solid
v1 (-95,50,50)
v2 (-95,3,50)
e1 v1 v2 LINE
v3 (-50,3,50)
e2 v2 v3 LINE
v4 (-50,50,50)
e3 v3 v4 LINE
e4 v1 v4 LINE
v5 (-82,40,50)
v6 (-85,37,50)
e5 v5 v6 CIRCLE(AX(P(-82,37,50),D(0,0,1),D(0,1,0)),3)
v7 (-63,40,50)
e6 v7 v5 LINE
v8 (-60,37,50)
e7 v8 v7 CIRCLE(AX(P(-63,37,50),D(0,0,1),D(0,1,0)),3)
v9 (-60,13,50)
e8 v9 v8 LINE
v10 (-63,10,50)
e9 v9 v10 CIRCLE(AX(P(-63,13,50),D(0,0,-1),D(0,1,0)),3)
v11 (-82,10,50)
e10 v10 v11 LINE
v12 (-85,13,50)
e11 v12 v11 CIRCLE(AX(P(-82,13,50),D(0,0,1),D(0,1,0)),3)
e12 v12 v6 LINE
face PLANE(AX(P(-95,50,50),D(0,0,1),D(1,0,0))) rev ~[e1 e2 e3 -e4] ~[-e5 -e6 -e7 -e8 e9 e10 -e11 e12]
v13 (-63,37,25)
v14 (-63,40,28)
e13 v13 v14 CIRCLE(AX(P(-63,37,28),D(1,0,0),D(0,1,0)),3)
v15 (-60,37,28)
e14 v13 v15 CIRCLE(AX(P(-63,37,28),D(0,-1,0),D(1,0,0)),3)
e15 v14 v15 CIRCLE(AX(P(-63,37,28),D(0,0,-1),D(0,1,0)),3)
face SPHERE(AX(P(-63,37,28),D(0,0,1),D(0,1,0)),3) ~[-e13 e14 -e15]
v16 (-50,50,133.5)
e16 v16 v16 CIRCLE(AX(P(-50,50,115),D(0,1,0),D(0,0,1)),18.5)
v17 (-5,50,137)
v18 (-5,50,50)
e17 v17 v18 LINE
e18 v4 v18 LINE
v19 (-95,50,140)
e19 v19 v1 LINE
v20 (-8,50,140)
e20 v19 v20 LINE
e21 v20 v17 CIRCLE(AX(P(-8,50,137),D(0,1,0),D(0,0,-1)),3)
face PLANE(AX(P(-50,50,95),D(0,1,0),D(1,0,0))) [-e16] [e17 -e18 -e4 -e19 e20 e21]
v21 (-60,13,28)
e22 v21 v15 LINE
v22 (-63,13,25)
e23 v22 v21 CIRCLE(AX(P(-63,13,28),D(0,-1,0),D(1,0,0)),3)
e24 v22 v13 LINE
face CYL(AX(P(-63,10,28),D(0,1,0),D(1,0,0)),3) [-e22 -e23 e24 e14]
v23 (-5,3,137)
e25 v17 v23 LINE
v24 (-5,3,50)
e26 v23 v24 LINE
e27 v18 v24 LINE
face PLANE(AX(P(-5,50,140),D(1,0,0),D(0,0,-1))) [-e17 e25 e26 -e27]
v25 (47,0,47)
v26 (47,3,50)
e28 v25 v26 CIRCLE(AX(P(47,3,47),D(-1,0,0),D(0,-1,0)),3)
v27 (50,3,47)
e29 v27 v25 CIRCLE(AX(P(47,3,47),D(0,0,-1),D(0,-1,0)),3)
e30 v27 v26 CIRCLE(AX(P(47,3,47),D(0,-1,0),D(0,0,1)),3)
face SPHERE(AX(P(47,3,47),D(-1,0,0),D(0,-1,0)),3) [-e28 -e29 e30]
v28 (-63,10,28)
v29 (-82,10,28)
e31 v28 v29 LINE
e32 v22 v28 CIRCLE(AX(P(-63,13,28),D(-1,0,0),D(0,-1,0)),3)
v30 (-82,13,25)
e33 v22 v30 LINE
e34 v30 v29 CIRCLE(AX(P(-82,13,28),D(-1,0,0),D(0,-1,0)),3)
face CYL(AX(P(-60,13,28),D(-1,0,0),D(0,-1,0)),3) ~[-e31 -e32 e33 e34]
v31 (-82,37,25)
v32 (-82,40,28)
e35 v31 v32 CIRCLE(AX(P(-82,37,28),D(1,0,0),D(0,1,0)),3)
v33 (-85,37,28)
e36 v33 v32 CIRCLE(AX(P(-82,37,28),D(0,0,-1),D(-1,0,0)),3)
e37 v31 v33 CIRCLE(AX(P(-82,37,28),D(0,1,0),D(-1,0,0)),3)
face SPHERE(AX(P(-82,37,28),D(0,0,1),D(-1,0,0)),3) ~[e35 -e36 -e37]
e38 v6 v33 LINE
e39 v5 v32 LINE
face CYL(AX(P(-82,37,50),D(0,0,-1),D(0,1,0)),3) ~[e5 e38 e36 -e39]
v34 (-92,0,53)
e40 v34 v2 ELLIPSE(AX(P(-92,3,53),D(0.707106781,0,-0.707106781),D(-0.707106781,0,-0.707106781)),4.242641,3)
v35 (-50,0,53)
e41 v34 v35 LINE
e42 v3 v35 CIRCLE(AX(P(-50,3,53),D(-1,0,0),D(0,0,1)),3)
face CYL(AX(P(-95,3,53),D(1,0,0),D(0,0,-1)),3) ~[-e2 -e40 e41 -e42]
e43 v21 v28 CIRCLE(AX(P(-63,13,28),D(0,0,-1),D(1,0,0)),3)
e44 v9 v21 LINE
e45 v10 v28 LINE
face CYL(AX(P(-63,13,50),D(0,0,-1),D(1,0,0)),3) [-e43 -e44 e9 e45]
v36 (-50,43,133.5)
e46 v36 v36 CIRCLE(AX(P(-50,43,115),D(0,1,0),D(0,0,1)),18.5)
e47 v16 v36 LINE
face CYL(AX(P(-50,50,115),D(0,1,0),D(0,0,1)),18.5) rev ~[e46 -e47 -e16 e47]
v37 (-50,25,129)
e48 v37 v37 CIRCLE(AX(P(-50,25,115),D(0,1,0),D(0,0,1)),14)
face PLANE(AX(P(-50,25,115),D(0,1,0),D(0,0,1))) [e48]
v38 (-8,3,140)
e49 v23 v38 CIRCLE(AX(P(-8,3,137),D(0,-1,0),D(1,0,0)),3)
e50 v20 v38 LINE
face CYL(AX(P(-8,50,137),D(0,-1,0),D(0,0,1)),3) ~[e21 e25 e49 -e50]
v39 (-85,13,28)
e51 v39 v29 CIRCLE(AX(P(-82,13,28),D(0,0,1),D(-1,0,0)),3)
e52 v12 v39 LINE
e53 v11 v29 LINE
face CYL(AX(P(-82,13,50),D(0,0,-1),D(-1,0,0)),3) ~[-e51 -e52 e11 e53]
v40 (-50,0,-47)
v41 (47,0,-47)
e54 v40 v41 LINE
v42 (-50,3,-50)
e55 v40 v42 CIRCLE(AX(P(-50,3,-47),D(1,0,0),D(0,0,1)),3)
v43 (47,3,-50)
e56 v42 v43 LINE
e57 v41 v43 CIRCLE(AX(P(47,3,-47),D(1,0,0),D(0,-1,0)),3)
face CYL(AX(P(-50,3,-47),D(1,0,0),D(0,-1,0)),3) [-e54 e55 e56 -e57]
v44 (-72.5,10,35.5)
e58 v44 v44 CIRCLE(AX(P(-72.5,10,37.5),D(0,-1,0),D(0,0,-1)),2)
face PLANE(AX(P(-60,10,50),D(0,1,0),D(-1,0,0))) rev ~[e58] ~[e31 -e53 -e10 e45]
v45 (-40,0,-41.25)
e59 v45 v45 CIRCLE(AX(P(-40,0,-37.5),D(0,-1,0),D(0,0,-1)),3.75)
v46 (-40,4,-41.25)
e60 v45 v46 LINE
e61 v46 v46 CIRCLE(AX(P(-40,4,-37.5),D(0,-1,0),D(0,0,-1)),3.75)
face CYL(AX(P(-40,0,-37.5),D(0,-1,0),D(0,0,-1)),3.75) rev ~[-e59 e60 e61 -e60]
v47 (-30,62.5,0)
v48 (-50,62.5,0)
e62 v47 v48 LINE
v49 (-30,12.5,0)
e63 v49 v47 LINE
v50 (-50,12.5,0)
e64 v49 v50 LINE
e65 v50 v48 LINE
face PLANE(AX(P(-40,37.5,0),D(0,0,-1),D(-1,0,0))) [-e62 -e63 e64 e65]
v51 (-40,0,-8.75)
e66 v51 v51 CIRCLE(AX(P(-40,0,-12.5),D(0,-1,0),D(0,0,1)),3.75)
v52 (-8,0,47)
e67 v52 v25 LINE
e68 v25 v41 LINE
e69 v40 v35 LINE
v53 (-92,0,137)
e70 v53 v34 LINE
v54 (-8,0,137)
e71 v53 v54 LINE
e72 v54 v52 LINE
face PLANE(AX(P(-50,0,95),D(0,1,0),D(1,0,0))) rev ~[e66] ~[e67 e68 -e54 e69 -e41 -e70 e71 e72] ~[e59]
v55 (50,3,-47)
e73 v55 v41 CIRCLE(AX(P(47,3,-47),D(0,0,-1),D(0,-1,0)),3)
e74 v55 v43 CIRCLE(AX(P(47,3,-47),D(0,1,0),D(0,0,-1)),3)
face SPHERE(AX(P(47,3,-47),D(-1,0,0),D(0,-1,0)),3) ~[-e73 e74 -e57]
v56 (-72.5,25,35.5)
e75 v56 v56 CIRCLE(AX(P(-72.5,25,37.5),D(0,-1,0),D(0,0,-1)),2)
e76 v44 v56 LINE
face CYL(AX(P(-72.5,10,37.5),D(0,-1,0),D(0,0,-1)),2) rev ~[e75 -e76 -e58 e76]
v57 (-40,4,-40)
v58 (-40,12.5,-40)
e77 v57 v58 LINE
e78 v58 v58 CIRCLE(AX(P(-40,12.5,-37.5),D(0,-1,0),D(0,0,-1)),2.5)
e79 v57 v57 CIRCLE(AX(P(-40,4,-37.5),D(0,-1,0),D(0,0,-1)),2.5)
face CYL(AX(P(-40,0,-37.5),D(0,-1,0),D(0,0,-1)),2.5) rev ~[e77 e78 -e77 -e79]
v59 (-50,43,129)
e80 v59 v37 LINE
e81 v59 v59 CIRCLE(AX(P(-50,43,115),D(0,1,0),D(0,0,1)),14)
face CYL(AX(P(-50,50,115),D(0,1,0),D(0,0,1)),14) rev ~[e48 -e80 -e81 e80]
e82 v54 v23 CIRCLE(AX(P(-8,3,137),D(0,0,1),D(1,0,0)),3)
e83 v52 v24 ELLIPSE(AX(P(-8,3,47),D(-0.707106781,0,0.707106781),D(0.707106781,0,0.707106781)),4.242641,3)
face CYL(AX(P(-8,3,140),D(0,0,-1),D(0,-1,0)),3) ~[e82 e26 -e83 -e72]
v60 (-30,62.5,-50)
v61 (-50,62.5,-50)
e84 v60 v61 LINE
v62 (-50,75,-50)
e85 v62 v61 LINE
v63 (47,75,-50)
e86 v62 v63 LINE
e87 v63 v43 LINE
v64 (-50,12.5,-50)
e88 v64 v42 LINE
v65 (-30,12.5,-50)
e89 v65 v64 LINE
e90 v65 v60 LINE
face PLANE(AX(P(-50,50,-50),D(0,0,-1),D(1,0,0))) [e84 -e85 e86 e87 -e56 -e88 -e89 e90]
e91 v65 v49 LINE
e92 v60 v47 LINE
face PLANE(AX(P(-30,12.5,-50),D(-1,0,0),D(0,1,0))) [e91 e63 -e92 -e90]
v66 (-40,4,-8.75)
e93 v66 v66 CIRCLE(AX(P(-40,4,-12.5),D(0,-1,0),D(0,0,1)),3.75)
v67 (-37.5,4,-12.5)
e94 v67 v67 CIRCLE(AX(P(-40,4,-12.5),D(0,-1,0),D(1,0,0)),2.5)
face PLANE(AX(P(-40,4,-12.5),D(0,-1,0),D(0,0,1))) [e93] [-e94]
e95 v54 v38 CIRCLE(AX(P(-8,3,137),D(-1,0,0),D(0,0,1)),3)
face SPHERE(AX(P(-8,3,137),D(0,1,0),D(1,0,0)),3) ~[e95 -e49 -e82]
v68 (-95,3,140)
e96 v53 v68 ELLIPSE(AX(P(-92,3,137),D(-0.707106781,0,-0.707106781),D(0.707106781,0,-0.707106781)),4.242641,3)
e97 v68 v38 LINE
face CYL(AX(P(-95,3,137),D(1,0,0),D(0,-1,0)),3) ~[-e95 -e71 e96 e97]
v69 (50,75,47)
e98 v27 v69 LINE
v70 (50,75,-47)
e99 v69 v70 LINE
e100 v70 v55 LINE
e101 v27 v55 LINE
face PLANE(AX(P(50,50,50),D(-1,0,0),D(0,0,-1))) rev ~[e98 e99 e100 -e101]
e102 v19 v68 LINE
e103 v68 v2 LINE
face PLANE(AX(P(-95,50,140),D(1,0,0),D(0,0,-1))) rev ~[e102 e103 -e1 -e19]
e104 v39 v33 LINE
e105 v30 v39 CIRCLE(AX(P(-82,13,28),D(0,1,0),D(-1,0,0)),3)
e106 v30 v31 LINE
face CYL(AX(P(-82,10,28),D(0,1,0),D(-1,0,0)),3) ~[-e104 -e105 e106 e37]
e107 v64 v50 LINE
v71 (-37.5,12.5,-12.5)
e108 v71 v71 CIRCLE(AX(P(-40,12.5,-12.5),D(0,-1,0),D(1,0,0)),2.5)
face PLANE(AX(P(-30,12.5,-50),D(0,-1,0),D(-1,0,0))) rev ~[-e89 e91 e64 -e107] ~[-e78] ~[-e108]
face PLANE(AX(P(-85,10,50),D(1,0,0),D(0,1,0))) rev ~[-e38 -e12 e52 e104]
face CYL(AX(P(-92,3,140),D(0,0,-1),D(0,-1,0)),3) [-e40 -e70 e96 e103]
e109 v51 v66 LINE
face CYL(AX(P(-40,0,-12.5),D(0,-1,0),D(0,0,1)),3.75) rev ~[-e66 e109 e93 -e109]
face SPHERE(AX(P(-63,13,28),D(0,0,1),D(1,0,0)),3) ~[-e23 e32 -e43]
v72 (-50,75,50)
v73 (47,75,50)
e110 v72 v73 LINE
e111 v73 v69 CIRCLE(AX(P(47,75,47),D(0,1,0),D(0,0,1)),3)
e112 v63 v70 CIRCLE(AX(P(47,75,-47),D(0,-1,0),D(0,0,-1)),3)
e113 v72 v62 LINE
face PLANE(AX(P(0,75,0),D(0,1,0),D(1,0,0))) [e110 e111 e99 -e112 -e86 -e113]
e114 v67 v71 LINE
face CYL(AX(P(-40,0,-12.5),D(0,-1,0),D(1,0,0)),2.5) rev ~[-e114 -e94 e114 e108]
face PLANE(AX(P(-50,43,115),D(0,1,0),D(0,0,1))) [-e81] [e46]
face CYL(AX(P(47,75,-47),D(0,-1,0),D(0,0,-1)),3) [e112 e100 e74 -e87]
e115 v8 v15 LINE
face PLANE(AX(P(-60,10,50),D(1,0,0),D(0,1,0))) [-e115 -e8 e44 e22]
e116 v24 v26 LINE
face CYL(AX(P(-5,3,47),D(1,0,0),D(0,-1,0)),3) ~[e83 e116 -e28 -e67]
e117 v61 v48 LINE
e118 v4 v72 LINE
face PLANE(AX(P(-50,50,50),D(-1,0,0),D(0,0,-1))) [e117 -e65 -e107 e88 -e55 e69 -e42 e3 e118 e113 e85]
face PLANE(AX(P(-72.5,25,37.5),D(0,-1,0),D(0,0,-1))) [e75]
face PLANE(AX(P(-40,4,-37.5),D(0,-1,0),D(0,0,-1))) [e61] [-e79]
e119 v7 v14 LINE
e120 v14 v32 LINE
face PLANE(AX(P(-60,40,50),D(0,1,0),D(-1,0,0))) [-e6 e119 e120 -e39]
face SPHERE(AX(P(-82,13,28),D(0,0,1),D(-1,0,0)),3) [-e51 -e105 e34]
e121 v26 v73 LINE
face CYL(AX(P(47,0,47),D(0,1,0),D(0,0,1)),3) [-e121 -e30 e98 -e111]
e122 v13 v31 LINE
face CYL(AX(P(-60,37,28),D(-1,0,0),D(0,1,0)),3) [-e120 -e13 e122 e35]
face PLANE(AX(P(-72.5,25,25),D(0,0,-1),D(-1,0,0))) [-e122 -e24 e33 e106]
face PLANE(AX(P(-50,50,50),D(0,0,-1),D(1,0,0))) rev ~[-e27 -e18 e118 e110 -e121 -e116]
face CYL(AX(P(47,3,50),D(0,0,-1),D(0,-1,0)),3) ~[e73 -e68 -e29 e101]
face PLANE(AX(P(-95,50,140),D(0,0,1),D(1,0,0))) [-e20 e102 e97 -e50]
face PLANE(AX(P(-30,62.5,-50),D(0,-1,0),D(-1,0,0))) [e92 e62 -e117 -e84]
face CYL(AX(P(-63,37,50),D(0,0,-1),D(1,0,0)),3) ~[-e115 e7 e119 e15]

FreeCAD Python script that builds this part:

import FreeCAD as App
import Part
import Sketcher


def edges_at(feature, points):
    """Names of the edges that pass closest to the given points."""
    edges = feature.Shape.Edges
    near = lambda p: min(range(len(edges)), key=lambda i: edges[i].distToShape(Part.Vertex(*p))[0])
    return sorted({f"Edge{near(p) + 1}" for p in points})

doc = App.newDocument("Part")
body = doc.addObject("PartDesign::Body", "Body")

# Sketch on XZ plane
sketch1 = body.newObject("Sketcher::SketchObject", "Sketch")
sketch1.AttachmentSupport = (doc.getObject("XZ_Plane"), [""])
sketch1.MapMode = "FlatFace"
sketch1.addGeometry(Part.LineSegment(App.Vector(-50, -50, 0), App.Vector(-50, 50, 0)), False)
sketch1.addGeometry(Part.LineSegment(App.Vector(-50, 50, 0), App.Vector(50, 50, 0)), False)
sketch1.addGeometry(Part.LineSegment(App.Vector(50, 50, 0), App.Vector(50, -50, 0)), False)
sketch1.addGeometry(Part.LineSegment(App.Vector(50, -50, 0), App.Vector(-50, -50, 0)), False)
sketch1.addConstraint(Sketcher.Constraint("Coincident", 0, 2, 1, 1))
sketch1.addConstraint(Sketcher.Constraint("Coincident", 1, 2, 2, 1))
sketch1.addConstraint(Sketcher.Constraint("Coincident", 2, 2, 3, 1))
sketch1.addConstraint(Sketcher.Constraint("Coincident", 3, 2, 0, 1))
sketch1.addConstraint(Sketcher.Constraint("Vertical", 0))
sketch1.addConstraint(Sketcher.Constraint("Horizontal", 1))
sketch1.addConstraint(Sketcher.Constraint("Vertical", 2))
sketch1.addConstraint(Sketcher.Constraint("Horizontal", 3))
sketch1.addConstraint(Sketcher.Constraint("Symmetric", 0, 2, 2, 2, -1, 1))
sketch1.addConstraint(Sketcher.Constraint("Equal", 3, 0))
sketch1.addConstraint(Sketcher.Constraint("DistanceX", 1, 1, 1, 2, 100.0))
pad1 = body.newObject("PartDesign::Pad", "Pad")
pad1.Profile = sketch1
pad1.Length = 50
pad1.Reversed = True

# Sketch on XZ plane
sketch2 = body.newObject("Sketcher::SketchObject", "Sketch001")
sketch2.AttachmentSupport = (doc.getObject("XZ_Plane"), [""])
sketch2.MapMode = "FlatFace"
sketch2.AttachmentOffset = App.Placement(App.Vector(0, 0, -50), App.Rotation())
sketch2.addGeometry(Part.LineSegment(App.Vector(-95, 50, 0), App.Vector(-95, 140, 0)), False)
sketch2.addGeometry(Part.LineSegment(App.Vector(-95, 140, 0), App.Vector(-5, 140, 0)), False)
sketch2.addGeometry(Part.LineSegment(App.Vector(-5, 140, 0), App.Vector(-5, 50, 0)), False)
sketch2.addGeometry(Part.LineSegment(App.Vector(-5, 50, 0), App.Vector(-95, 50, 0)), False)
sketch2.addConstraint(Sketcher.Constraint("Coincident", 0, 2, 1, 1))
sketch2.addConstraint(Sketcher.Constraint("Coincident", 1, 2, 2, 1))
sketch2.addConstraint(Sketcher.Constraint("Coincident", 2, 2, 3, 1))
sketch2.addConstraint(Sketcher.Constraint("Coincident", 3, 2, 0, 1))
sketch2.addConstraint(Sketcher.Constraint("Vertical", 0))
sketch2.addConstraint(Sketcher.Constraint("Horizontal", 1))
sketch2.addConstraint(Sketcher.Constraint("Vertical", 2))
sketch2.addConstraint(Sketcher.Constraint("Horizontal", 3))
sketch2.addConstraint(Sketcher.Constraint("Equal", 3, 0))
sketch2.addConstraint(Sketcher.Constraint("DistanceX", 1, 1, 1, 2, 90.0))
sketch2.addConstraint(Sketcher.Constraint("DistanceX", 0, 2, -1, 1, 95.0))
sketch2.addConstraint(Sketcher.Constraint("DistanceY", -1, 1, 0, 2, 140.0))
pad2 = body.newObject("PartDesign::Pad", "Pad001")
pad2.Profile = sketch2
pad2.Length = 50

# Sketch on XZ plane
sketch3 = body.newObject("Sketcher::SketchObject", "Sketch002")
sketch3.AttachmentSupport = (doc.getObject("XZ_Plane"), [""])
sketch3.MapMode = "FlatFace"
sketch3.AttachmentOffset = App.Placement(App.Vector(0, 0, -50), App.Rotation())
sketch3.addGeometry(Part.Circle(App.Vector(-50, 115, 0), App.Vector(0, 0, 1), 18.5), False)
sketch3.addConstraint(Sketcher.Constraint("Diameter", 0, 37.0))
sketch3.addConstraint(Sketcher.Constraint("DistanceX", 0, 3, -1, 1, 50.0))
sketch3.addConstraint(Sketcher.Constraint("DistanceY", -1, 1, 0, 3, 115.0))
pocket1 = body.newObject("PartDesign::Pocket", "Pocket")
pocket1.Profile = sketch3
pocket1.Length = 7
pocket1.Reversed = True

# Sketch on XZ plane
sketch4 = body.newObject("Sketcher::SketchObject", "Sketch003")
sketch4.AttachmentSupport = (doc.getObject("XZ_Plane"), [""])
sketch4.MapMode = "FlatFace"
sketch4.AttachmentOffset = App.Placement(App.Vector(0, 0, -50), App.Rotation())
sketch4.addGeometry(Part.Circle(App.Vector(-50, 115, 0), App.Vector(0, 0, 1), 14), False)
sketch4.addConstraint(Sketcher.Constraint("Diameter", 0, 28.0))
sketch4.addConstraint(Sketcher.Constraint("DistanceX", 0, 3, -1, 1, 50.0))
sketch4.addConstraint(Sketcher.Constraint("DistanceY", -1, 1, 0, 3, 115.0))
pocket2 = body.newObject("PartDesign::Pocket", "Pocket001")
pocket2.Profile = sketch4
pocket2.Length = 25
pocket2.Reversed = True

# Sketch on XY plane
sketch5 = body.newObject("Sketcher::SketchObject", "Sketch004")
sketch5.AttachmentSupport = (doc.getObject("XY_Plane"), [""])
sketch5.MapMode = "FlatFace"
sketch5.AttachmentOffset = App.Placement(App.Vector(0, 0, 50), App.Rotation())
sketch5.addGeometry(Part.LineSegment(App.Vector(-60, 40, 0), App.Vector(-60, 10, 0)), False)
sketch5.addGeometry(Part.LineSegment(App.Vector(-60, 10, 0), App.Vector(-85, 10, 0)), False)
sketch5.addGeometry(Part.LineSegment(App.Vector(-85, 10, 0), App.Vector(-85, 40, 0)), False)
sketch5.addGeometry(Part.LineSegment(App.Vector(-85, 40, 0), App.Vector(-60, 40, 0)), False)
sketch5.addConstraint(Sketcher.Constraint("Coincident", 0, 2, 1, 1))
sketch5.addConstraint(Sketcher.Constraint("Coincident", 1, 2, 2, 1))
sketch5.addConstraint(Sketcher.Constraint("Coincident", 2, 2, 3, 1))
sketch5.addConstraint(Sketcher.Constraint("Coincident", 3, 2, 0, 1))
sketch5.addConstraint(Sketcher.Constraint("Vertical", 0))
sketch5.addConstraint(Sketcher.Constraint("Horizontal", 1))
sketch5.addConstraint(Sketcher.Constraint("Vertical", 2))
sketch5.addConstraint(Sketcher.Constraint("Horizontal", 3))
sketch5.addConstraint(Sketcher.Constraint("DistanceX", 1, 2, 1, 1, 25.0))
sketch5.addConstraint(Sketcher.Constraint("DistanceY", 0, 2, 0, 1, 30.0))
sketch5.addConstraint(Sketcher.Constraint("DistanceX", 0, 2, -1, 1, 60.0))
sketch5.addConstraint(Sketcher.Constraint("DistanceY", -1, 1, 0, 2, 10.0))
pad3 = body.newObject("PartDesign::Pad", "Pad002")
pad3.Profile = sketch5
pad3.Length = 25
pad3.Reversed = True

# Sketch on XZ plane
sketch6 = body.newObject("Sketcher::SketchObject", "Sketch005")
sketch6.AttachmentSupport = (doc.getObject("XZ_Plane"), [""])
sketch6.MapMode = "FlatFace"
sketch6.AttachmentOffset = App.Placement(App.Vector(0, 0, -50), App.Rotation())
sketch6.addGeometry(Part.LineSegment(App.Vector(-50, -50, 0), App.Vector(-50, 50, 0)), False)
sketch6.addGeometry(Part.LineSegment(App.Vector(-50, 50, 0), App.Vector(50, 50, 0)), False)
sketch6.addGeometry(Part.LineSegment(App.Vector(50, 50, 0), App.Vector(50, -50, 0)), False)
sketch6.addGeometry(Part.LineSegment(App.Vector(50, -50, 0), App.Vector(-50, -50, 0)), False)
sketch6.addConstraint(Sketcher.Constraint("Coincident", 0, 2, 1, 1))
sketch6.addConstraint(Sketcher.Constraint("Coincident", 1, 2, 2, 1))
sketch6.addConstraint(Sketcher.Constraint("Coincident", 2, 2, 3, 1))
sketch6.addConstraint(Sketcher.Constraint("Coincident", 3, 2, 0, 1))
sketch6.addConstraint(Sketcher.Constraint("Vertical", 0))
sketch6.addConstraint(Sketcher.Constraint("Horizontal", 1))
sketch6.addConstraint(Sketcher.Constraint("Vertical", 2))
sketch6.addConstraint(Sketcher.Constraint("Horizontal", 3))
sketch6.addConstraint(Sketcher.Constraint("Symmetric", 0, 2, 2, 2, -1, 1))
sketch6.addConstraint(Sketcher.Constraint("Equal", 3, 0))
sketch6.addConstraint(Sketcher.Constraint("DistanceX", 1, 1, 1, 2, 100.0))
pad4 = body.newObject("PartDesign::Pad", "Pad003")
pad4.Profile = sketch6
pad4.Length = 25
pad4.Reversed = True

# Sketch on XY plane
sketch7 = body.newObject("Sketcher::SketchObject", "Sketch006")
sketch7.AttachmentSupport = (doc.getObject("XY_Plane"), [""])
sketch7.MapMode = "FlatFace"
sketch7.AttachmentOffset = App.Placement(App.Vector(0, 0, -50), App.Rotation())
sketch7.addGeometry(Part.LineSegment(App.Vector(-30, 62.5, 0), App.Vector(-30, 12.5, 0)), False)
sketch7.addGeometry(Part.LineSegment(App.Vector(-30, 12.5, 0), App.Vector(-50, 12.5, 0)), False)
sketch7.addGeometry(Part.LineSegment(App.Vector(-50, 12.5, 0), App.Vector(-50, 62.5, 0)), False)
sketch7.addGeometry(Part.LineSegment(App.Vector(-50, 62.5, 0), App.Vector(-30, 62.5, 0)), False)
sketch7.addConstraint(Sketcher.Constraint("Coincident", 0, 2, 1, 1))
sketch7.addConstraint(Sketcher.Constraint("Coincident", 1, 2, 2, 1))
sketch7.addConstraint(Sketcher.Constraint("Coincident", 2, 2, 3, 1))
sketch7.addConstraint(Sketcher.Constraint("Coincident", 3, 2, 0, 1))
sketch7.addConstraint(Sketcher.Constraint("Vertical", 0))
sketch7.addConstraint(Sketcher.Constraint("Horizontal", 1))
sketch7.addConstraint(Sketcher.Constraint("Vertical", 2))
sketch7.addConstraint(Sketcher.Constraint("Horizontal", 3))
sketch7.addConstraint(Sketcher.Constraint("DistanceX", 1, 2, 1, 1, 20.0))
sketch7.addConstraint(Sketcher.Constraint("DistanceY", 0, 2, 0, 1, 50.0))
sketch7.addConstraint(Sketcher.Constraint("DistanceX", 0, 2, -1, 1, 30.0))
sketch7.addConstraint(Sketcher.Constraint("DistanceY", -1, 1, 0, 2, 12.5))
pocket3 = body.newObject("PartDesign::Pocket", "Pocket002")
pocket3.Profile = sketch7
pocket3.Length = 50
pocket3.Reversed = True

# Sketch on XZ plane
sketch8 = body.newObject("Sketcher::SketchObject", "Sketch007")
sketch8.AttachmentSupport = (doc.getObject("XZ_Plane"), [""])
sketch8.MapMode = "FlatFace"
sketch8.AttachmentOffset = App.Placement(App.Vector(0, 0, -10), App.Rotation())
sketch8.addGeometry(Part.Circle(App.Vector(-72.5, 37.5, 0), App.Vector(0, 0, 1), 2), False)
sketch8.addConstraint(Sketcher.Constraint("Diameter", 0, 4.0))
sketch8.addConstraint(Sketcher.Constraint("DistanceX", 0, 3, -1, 1, 72.5))
sketch8.addConstraint(Sketcher.Constraint("DistanceY", -1, 1, 0, 3, 37.5))
pocket4 = body.newObject("PartDesign::Pocket", "Pocket003")
pocket4.Profile = sketch8
pocket4.Length = 15

# Sketch on XZ plane
sketch9 = body.newObject("Sketcher::SketchObject", "Sketch008")
sketch9.AttachmentSupport = (doc.getObject("XZ_Plane"), [""])
sketch9.MapMode = "FlatFace"
sketch9.addGeometry(Part.Circle(App.Vector(-40, -37.5, 0), App.Vector(0, 0, 1), 2.5), False)
sketch9.addGeometry(Part.Circle(App.Vector(-40, -12.5, 0), App.Vector(0, 0, 1), 2.5), False)
sketch9.addConstraint(Sketcher.Constraint("Equal", 0, 1))
sketch9.addConstraint(Sketcher.Constraint("Vertical", 0, 3, 1, 3))
sketch9.addConstraint(Sketcher.Constraint("Diameter", 0, 5.0))
sketch9.addConstraint(Sketcher.Constraint("DistanceX", 0, 3, -1, 1, 40.0))
sketch9.addConstraint(Sketcher.Constraint("DistanceY", 0, 3, 1, 3, 25.0))
sketch9.addConstraint(Sketcher.Constraint("DistanceY", 0, 3, -1, 1, 37.5))
pocket5 = body.newObject("PartDesign::Pocket", "Pocket004")
pocket5.Profile = sketch9
pocket5.Length = 15

# Sketch on XZ plane
sketch10 = body.newObject("Sketcher::SketchObject", "Sketch009")
sketch10.AttachmentSupport = (doc.getObject("XZ_Plane"), [""])
sketch10.MapMode = "FlatFace"
sketch10.addGeometry(Part.Circle(App.Vector(-40, -37.5, 0), App.Vector(0, 0, 1), 3.75), False)
sketch10.addGeometry(Part.Circle(App.Vector(-40, -12.5, 0), App.Vector(0, 0, 1), 3.75), False)
sketch10.addConstraint(Sketcher.Constraint("Equal", 0, 1))
sketch10.addConstraint(Sketcher.Constraint("Vertical", 0, 3, 1, 3))
sketch10.addConstraint(Sketcher.Constraint("Diameter", 0, 7.5))
sketch10.addConstraint(Sketcher.Constraint("DistanceX", 0, 3, -1, 1, 40.0))
sketch10.addConstraint(Sketcher.Constraint("DistanceY", 0, 3, 1, 3, 25.0))
sketch10.addConstraint(Sketcher.Constraint("DistanceY", 0, 3, -1, 1, 37.5))
pocket6 = body.newObject("PartDesign::Pocket", "Pocket005")
pocket6.Profile = sketch10
pocket6.Length = 4
doc.recompute()

fillet = body.newObject("PartDesign::Fillet", "Fillet")
fillet.Base = (pocket6, edges_at(pocket6, [
    (22.5, 0, 50),
    (-5, 25, 140),
    (-5, 0, 95),
    (-50, 0, 140),
    (-95, 0, 95),
    (-72.5, 0, 50),
    (-85, 10, 37.5),
    (-85, 40, 37.5),
    (-60, 40, 37.5),
    (-60, 10, 37.5),
    (-85, 25, 25),
    (-72.5, 40, 25),
    (-60, 25, 25),
    (-72.5, 10, 25),
    (0, 0, -50),
    (50, 0, 0),
    (50, 37.5, 50),
    (50, 37.5, -50),
]))
fillet.Radius = 3

doc.recompute()
